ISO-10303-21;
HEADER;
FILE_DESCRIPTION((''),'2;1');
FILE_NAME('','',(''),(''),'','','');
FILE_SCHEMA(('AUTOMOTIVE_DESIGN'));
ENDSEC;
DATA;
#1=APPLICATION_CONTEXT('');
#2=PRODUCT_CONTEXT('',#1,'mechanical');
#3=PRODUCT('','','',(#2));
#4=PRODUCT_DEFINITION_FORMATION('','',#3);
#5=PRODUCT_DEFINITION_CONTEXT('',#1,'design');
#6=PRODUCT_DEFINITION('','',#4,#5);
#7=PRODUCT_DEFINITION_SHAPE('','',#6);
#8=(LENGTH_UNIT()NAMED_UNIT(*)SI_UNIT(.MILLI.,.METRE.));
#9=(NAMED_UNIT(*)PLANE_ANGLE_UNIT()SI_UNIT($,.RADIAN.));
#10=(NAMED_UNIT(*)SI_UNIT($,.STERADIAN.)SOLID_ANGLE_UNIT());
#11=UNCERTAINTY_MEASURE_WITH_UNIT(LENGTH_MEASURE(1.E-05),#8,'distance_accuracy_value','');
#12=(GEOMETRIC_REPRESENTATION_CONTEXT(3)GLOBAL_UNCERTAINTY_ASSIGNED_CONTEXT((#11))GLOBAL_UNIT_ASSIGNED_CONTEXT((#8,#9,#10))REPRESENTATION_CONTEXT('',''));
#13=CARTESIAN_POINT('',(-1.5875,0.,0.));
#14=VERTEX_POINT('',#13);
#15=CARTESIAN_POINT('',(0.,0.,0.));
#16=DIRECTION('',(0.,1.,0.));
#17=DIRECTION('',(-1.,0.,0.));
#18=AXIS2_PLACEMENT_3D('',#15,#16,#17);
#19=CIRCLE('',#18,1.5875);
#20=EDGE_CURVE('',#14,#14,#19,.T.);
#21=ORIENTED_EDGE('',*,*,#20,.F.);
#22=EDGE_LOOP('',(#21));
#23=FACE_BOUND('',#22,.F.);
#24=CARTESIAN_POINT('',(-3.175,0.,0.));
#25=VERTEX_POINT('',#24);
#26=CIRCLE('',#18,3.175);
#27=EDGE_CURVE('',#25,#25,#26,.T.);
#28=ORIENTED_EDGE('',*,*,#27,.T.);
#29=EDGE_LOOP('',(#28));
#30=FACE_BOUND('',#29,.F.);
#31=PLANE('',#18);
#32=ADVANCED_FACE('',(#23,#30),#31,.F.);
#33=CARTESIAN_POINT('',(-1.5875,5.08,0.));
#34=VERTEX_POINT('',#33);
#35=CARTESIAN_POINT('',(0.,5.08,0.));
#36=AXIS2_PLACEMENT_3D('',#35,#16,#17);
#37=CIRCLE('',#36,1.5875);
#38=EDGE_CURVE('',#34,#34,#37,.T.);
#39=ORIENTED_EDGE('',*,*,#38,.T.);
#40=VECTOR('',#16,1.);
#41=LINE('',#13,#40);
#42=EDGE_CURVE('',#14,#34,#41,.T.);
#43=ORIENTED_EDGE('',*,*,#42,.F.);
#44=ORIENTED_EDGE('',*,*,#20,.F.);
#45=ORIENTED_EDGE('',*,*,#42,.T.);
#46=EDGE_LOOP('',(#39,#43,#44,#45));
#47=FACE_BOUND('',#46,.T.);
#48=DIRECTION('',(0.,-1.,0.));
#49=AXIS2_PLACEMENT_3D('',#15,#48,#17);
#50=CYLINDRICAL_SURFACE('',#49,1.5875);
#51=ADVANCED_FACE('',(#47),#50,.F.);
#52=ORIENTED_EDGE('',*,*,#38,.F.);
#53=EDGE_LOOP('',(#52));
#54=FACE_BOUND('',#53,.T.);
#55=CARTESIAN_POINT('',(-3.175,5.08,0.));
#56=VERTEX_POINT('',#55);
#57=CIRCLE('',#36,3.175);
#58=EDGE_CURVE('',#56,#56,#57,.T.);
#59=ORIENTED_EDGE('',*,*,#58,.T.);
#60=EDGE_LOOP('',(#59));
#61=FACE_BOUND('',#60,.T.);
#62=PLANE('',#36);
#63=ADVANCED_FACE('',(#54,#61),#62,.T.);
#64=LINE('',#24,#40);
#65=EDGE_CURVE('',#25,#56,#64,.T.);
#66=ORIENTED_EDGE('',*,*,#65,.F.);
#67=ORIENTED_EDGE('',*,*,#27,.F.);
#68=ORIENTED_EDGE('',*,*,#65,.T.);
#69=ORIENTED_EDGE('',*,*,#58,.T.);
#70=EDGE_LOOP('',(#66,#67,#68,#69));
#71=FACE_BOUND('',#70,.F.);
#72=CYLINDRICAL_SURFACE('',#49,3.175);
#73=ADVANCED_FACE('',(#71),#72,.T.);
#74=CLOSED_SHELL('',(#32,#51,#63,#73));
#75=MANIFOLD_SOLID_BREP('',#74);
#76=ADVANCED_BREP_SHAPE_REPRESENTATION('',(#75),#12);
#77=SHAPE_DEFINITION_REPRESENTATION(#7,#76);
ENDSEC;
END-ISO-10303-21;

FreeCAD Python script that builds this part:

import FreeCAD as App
import Part
import Sketcher
from FreeCAD import Vector
Q = App.Units.Quantity

doc = App.newDocument("Part")
body = doc.addObject("PartDesign::Body", "Body")

sketch1 = body.newObject("Sketcher::SketchObject", "Sketch")
sketch1.AttachmentSupport = (doc.getObject("XZ_Plane"), [""])
sketch1.MapMode = "FlatFace"
sketch1.addGeometry([
    Part.Circle(Vector(0, 0, 0), Vector(0, 0, 1), 3.175),
    Part.Circle(Vector(0, 0, 0), Vector(0, 0, 1), 1.5875),
], False)
sketch1.addConstraint([
    Sketcher.Constraint("Coincident", 0, 3, -1, 1),
    Sketcher.Constraint("Coincident", 1, 3, -1, 1),
    Sketcher.Constraint("Diameter", 0, Q("0.25 in")),
    Sketcher.Constraint("Diameter", 1, Q("0.125 in")),
])
pad1 = body.newObject("PartDesign::Pad", "Pad")
pad1.Profile = sketch1
pad1.Length = Q("0.2 in")
pad1.Reversed = True

doc.recompute()
